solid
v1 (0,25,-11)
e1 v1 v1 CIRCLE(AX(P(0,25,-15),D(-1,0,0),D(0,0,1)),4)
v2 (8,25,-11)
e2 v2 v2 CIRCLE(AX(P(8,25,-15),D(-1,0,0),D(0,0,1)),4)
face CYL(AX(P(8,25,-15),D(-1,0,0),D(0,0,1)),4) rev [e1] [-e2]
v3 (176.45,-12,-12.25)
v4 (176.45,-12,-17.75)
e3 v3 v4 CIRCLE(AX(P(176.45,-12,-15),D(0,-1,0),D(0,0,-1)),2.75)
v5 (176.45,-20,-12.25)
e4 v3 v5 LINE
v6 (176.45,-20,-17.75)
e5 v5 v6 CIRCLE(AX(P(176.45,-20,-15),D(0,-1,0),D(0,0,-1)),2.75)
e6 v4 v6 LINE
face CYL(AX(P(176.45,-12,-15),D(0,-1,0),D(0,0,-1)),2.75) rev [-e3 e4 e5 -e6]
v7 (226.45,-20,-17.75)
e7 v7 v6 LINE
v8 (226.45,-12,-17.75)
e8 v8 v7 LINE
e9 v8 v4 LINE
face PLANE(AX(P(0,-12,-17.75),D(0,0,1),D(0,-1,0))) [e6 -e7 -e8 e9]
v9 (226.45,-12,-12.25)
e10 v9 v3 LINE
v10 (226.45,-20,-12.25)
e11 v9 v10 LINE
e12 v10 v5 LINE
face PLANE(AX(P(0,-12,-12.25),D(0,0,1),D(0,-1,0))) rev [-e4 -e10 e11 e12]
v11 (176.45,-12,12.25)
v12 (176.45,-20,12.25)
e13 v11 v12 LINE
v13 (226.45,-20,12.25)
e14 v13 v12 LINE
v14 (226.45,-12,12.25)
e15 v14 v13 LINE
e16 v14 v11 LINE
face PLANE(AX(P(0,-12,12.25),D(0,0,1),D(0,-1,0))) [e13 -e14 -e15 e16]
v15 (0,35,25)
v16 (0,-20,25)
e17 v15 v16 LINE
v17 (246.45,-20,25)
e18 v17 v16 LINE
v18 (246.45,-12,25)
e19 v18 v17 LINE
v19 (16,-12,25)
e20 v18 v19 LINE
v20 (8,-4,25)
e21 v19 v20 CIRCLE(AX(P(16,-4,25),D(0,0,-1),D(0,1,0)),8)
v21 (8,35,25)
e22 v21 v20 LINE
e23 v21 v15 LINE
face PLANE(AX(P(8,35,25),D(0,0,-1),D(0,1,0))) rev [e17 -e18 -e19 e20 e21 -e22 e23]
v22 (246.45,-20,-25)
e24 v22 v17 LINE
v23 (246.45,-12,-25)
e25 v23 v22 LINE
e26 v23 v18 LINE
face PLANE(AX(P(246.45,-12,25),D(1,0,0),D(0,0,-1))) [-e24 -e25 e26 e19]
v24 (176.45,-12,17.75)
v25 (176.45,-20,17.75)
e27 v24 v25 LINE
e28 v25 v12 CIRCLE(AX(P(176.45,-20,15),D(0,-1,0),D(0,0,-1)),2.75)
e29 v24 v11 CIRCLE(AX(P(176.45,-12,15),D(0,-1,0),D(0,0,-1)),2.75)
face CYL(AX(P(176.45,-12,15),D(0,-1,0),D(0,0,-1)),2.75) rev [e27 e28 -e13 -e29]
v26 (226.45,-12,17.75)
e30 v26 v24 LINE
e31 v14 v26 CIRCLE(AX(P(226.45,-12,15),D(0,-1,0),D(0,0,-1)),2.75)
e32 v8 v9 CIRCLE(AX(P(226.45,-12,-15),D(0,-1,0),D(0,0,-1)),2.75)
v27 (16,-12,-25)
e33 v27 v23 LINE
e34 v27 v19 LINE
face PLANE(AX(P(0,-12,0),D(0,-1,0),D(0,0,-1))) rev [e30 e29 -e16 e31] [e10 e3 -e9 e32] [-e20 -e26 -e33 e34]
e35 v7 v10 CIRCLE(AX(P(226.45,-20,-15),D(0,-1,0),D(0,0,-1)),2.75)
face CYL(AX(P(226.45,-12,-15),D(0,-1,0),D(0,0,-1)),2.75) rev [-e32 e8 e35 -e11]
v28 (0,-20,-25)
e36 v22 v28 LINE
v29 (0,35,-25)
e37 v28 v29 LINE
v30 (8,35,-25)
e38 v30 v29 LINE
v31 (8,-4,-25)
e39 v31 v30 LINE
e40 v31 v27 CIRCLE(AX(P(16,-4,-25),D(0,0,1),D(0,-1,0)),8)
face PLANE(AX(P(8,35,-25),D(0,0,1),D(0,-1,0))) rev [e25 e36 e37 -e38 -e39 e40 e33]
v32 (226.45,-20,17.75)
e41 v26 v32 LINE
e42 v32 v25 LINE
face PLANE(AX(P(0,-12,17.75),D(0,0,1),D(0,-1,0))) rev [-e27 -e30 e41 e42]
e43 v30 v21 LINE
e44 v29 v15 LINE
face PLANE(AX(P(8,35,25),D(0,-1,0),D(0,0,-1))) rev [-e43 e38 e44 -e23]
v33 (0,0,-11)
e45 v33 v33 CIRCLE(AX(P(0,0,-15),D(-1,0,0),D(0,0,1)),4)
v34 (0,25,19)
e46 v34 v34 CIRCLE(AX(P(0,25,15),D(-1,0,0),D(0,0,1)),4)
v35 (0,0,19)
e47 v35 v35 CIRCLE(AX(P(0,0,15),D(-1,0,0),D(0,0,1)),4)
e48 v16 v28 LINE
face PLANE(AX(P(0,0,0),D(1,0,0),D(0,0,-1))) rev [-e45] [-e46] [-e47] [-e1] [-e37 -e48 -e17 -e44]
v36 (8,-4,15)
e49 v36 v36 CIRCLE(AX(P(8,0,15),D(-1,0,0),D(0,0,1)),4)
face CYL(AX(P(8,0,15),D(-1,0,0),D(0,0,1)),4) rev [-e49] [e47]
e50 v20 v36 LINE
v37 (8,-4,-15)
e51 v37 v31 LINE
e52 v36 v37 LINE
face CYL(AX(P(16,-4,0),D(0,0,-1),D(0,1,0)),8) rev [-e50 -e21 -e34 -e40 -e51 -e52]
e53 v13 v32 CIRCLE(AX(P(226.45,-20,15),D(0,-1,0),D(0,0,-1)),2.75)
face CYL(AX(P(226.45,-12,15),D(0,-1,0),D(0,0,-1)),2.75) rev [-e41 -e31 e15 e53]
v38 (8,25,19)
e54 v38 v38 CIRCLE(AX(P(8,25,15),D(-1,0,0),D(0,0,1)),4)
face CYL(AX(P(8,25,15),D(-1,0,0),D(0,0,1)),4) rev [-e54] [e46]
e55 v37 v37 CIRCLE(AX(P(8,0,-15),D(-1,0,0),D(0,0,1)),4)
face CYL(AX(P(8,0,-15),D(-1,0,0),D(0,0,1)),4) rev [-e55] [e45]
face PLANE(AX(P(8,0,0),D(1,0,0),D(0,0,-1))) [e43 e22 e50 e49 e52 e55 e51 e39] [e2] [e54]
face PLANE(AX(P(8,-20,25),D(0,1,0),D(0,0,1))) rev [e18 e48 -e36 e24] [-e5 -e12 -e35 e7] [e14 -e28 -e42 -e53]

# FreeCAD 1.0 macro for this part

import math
import FreeCAD as App
import Part
import Sketcher
from FreeCAD import Vector


def edges_at(feature, points):
    """Names of the edges that pass closest to the given points."""
    edges = feature.Shape.Edges
    near = lambda p: min(range(len(edges)), key=lambda i: edges[i].distToShape(Part.Vertex(*p))[0])
    return sorted({f"Edge{near(p) + 1}" for p in points})


def add_polygon(sketch, points):
    """Adds a closed chain of lines whose ends are joined by coincident constraints."""
    first, n = sketch.GeometryCount, len(points)
    for a, b in zip(points, points[1:] + points[:1]):
        sketch.addGeometry(Part.LineSegment(App.Vector(*a, 0), App.Vector(*b, 0)), False)
    for i in range(n):
        sketch.addConstraint(Sketcher.Constraint("Coincident", first + i, 2, first + (i + 1) % n, 1))

doc = App.newDocument("Part")
body = doc.addObject("PartDesign::Body", "Body")

sketch1 = doc.addObject("Sketcher::SketchObject", "Sketch")
body.addObject(sketch1)
sketch1.AttachmentSupport = (doc.YZ_Plane, [""])
sketch1.MapMode = "FlatFace"
add_polygon(sketch1, [(35, 25), (-20, 25), (-20, -25), (35, -25)])
sketch1.addConstraint(Sketcher.Constraint("Horizontal", 0))
sketch1.addConstraint(Sketcher.Constraint("Vertical", 1))
sketch1.addConstraint(Sketcher.Constraint("Horizontal", 2))
sketch1.addConstraint(Sketcher.Constraint("Vertical", 3))
sketch1.addConstraint(Sketcher.Constraint("DistanceX", 0, 2, 0, 1, 55.0))
sketch1.addConstraint(Sketcher.Constraint("DistanceY", 1, 2, 1, 1, 50.0))
sketch1.addConstraint(Sketcher.Constraint("DistanceX", 0, 2, -1, 1, 20.0))
sketch1.addConstraint(Sketcher.Constraint("DistanceY", -1, 1, 0, 2, 25.0))
pad1 = doc.addObject("PartDesign::Pad", "Pad")
body.addObject(pad1)
pad1.Profile = sketch1
pad1.Length = 8

sketch2 = doc.addObject("Sketcher::SketchObject", "Sketch001")
body.addObject(sketch2)
sketch2.AttachmentSupport = (doc.XZ_Plane, [""])
sketch2.MapMode = "FlatFace"
sketch2.AttachmentOffset = App.Placement(Vector(0, 0, 20), App.Rotation())
add_polygon(sketch2, [(246.45, 25), (0, 25), (0, -25), (246.45, -25)])
sketch2.addConstraint(Sketcher.Constraint("Horizontal", 0))
sketch2.addConstraint(Sketcher.Constraint("Vertical", 1))
sketch2.addConstraint(Sketcher.Constraint("Horizontal", 2))
sketch2.addConstraint(Sketcher.Constraint("Vertical", 3))
sketch2.addConstraint(Sketcher.Constraint("Symmetric", 0, 2, 1, 2, -1, 1))
sketch2.addConstraint(Sketcher.Constraint("DistanceY", 1, 2, 1, 1, 50.0))
sketch2.addConstraint(Sketcher.Constraint("DistanceX", 0, 2, 0, 1, 246.45))
pad2 = doc.addObject("PartDesign::Pad", "Pad001")
body.addObject(pad2)
pad2.Profile = sketch2
pad2.Length = 8
pad2.Reversed = True
doc.recompute()

fillet = doc.addObject("PartDesign::Fillet", "Fillet")
body.addObject(fillet)
fillet.Base = (pad2, edges_at(pad2, [(8, -12, 0)]))
fillet.Radius = 8

sketch3 = doc.addObject("Sketcher::SketchObject", "Sketch002")
body.addObject(sketch3)
sketch3.AttachmentSupport = (doc.XZ_Plane, [""])
sketch3.MapMode = "FlatFace"
sketch3.AttachmentOffset = App.Placement(Vector(0, 0, 20), App.Rotation())
sketch3.addGeometry(Part.LineSegment(Vector(176.45, -17.75, 0), Vector(226.45, -17.75, 0)), False)
sketch3.addGeometry(Part.ArcOfCircle(Part.Circle(Vector(226.45, -15, 0), Vector(0, 0, 1), 2.75), math.radians(-90), math.radians(90)), False)
sketch3.addGeometry(Part.LineSegment(Vector(226.45, -12.25, 0), Vector(176.45, -12.25, 0)), False)
sketch3.addGeometry(Part.ArcOfCircle(Part.Circle(Vector(176.45, -15, 0), Vector(0, 0, 1), 2.75), math.radians(90), math.radians(270)), False)
sketch3.addGeometry(Part.LineSegment(Vector(176.45, 12.25, 0), Vector(226.45, 12.25, 0)), False)
sketch3.addGeometry(Part.ArcOfCircle(Part.Circle(Vector(226.45, 15, 0), Vector(0, 0, 1), 2.75), math.radians(-90), math.radians(90)), False)
sketch3.addGeometry(Part.LineSegment(Vector(226.45, 17.75, 0), Vector(176.45, 17.75, 0)), False)
sketch3.addGeometry(Part.ArcOfCircle(Part.Circle(Vector(176.45, 15, 0), Vector(0, 0, 1), 2.75), math.radians(90), math.radians(270)), False)
sketch3.addConstraint(Sketcher.Constraint("Tangent", 0, 2, 1, 1))
sketch3.addConstraint(Sketcher.Constraint("Tangent", 1, 2, 2, 1))
sketch3.addConstraint(Sketcher.Constraint("Tangent", 2, 2, 3, 1))
sketch3.addConstraint(Sketcher.Constraint("Tangent", 3, 2, 0, 1))
sketch3.addConstraint(Sketcher.Constraint("Tangent", 4, 2, 5, 1))
sketch3.addConstraint(Sketcher.Constraint("Tangent", 5, 2, 6, 1))
sketch3.addConstraint(Sketcher.Constraint("Tangent", 6, 2, 7, 1))
sketch3.addConstraint(Sketcher.Constraint("Tangent", 7, 2, 4, 1))
sketch3.addConstraint(Sketcher.Constraint("Horizontal", 0))
sketch3.addConstraint(Sketcher.Constraint("Horizontal", 2))
sketch3.addConstraint(Sketcher.Constraint("Horizontal", 4))
sketch3.addConstraint(Sketcher.Constraint("Horizontal", 6))
sketch3.addConstraint(Sketcher.Constraint("Equal", 3, 5))
sketch3.addConstraint(Sketcher.Constraint("Symmetric", 1, 3, 5, 3, -1))
sketch3.addConstraint(Sketcher.Constraint("Vertical", 3, 3, 7, 3))
sketch3.addConstraint(Sketcher.Constraint("DistanceX", 0, 1, 0, 2, 50.0))
sketch3.addConstraint(Sketcher.Constraint("Radius", 1, 2.75))
sketch3.addConstraint(Sketcher.Constraint("DistanceY", 1, 3, -1, 1, 15.0))
sketch3.addConstraint(Sketcher.Constraint("DistanceX", -1, 1, 1, 3, 226.45))
pocket1 = doc.addObject("PartDesign::Pocket", "Pocket")
body.addObject(pocket1)
pocket1.Profile = sketch3
pocket1.Length = 8

sketch4 = doc.addObject("Sketcher::SketchObject", "Sketch003")
body.addObject(sketch4)
sketch4.AttachmentSupport = (doc.YZ_Plane, [""])
sketch4.MapMode = "FlatFace"
sketch4.addGeometry(Part.Circle(Vector(25, -15, 0), Vector(0, 0, 1), 4), False)
sketch4.addGeometry(Part.Circle(Vector(0, -15, 0), Vector(0, 0, 1), 4), False)
sketch4.addGeometry(Part.Circle(Vector(25, 15, 0), Vector(0, 0, 1), 4), False)
sketch4.addGeometry(Part.Circle(Vector(0, 15, 0), Vector(0, 0, 1), 4), False)
sketch4.addConstraint(Sketcher.Constraint("Equal", 0, 1))
sketch4.addConstraint(Sketcher.Constraint("Equal", 1, 2))
sketch4.addConstraint(Sketcher.Constraint("Equal", 2, 3))
sketch4.addConstraint(Sketcher.Constraint("Symmetric", 1, 3, 3, 3, -1, 1))
sketch4.addConstraint(Sketcher.Constraint("Symmetric", 0, 3, 2, 3, -1))
sketch4.addConstraint(Sketcher.Constraint("PointOnObject", 1, 3, -2))
sketch4.addConstraint(Sketcher.Constraint("Horizontal", 0, 3, 1, 3))
sketch4.addConstraint(Sketcher.Constraint("Diameter", 0, 8.0))
sketch4.addConstraint(Sketcher.Constraint("DistanceX", -1, 1, 0, 3, 25.0))
sketch4.addConstraint(Sketcher.Constraint("DistanceY", 0, 3, -1, 1, 15.0))
pocket2 = doc.addObject("PartDesign::Pocket", "Pocket001")
body.addObject(pocket2)
pocket2.Profile = sketch4
pocket2.Length = 8
pocket2.Reversed = True

doc.recompute()
